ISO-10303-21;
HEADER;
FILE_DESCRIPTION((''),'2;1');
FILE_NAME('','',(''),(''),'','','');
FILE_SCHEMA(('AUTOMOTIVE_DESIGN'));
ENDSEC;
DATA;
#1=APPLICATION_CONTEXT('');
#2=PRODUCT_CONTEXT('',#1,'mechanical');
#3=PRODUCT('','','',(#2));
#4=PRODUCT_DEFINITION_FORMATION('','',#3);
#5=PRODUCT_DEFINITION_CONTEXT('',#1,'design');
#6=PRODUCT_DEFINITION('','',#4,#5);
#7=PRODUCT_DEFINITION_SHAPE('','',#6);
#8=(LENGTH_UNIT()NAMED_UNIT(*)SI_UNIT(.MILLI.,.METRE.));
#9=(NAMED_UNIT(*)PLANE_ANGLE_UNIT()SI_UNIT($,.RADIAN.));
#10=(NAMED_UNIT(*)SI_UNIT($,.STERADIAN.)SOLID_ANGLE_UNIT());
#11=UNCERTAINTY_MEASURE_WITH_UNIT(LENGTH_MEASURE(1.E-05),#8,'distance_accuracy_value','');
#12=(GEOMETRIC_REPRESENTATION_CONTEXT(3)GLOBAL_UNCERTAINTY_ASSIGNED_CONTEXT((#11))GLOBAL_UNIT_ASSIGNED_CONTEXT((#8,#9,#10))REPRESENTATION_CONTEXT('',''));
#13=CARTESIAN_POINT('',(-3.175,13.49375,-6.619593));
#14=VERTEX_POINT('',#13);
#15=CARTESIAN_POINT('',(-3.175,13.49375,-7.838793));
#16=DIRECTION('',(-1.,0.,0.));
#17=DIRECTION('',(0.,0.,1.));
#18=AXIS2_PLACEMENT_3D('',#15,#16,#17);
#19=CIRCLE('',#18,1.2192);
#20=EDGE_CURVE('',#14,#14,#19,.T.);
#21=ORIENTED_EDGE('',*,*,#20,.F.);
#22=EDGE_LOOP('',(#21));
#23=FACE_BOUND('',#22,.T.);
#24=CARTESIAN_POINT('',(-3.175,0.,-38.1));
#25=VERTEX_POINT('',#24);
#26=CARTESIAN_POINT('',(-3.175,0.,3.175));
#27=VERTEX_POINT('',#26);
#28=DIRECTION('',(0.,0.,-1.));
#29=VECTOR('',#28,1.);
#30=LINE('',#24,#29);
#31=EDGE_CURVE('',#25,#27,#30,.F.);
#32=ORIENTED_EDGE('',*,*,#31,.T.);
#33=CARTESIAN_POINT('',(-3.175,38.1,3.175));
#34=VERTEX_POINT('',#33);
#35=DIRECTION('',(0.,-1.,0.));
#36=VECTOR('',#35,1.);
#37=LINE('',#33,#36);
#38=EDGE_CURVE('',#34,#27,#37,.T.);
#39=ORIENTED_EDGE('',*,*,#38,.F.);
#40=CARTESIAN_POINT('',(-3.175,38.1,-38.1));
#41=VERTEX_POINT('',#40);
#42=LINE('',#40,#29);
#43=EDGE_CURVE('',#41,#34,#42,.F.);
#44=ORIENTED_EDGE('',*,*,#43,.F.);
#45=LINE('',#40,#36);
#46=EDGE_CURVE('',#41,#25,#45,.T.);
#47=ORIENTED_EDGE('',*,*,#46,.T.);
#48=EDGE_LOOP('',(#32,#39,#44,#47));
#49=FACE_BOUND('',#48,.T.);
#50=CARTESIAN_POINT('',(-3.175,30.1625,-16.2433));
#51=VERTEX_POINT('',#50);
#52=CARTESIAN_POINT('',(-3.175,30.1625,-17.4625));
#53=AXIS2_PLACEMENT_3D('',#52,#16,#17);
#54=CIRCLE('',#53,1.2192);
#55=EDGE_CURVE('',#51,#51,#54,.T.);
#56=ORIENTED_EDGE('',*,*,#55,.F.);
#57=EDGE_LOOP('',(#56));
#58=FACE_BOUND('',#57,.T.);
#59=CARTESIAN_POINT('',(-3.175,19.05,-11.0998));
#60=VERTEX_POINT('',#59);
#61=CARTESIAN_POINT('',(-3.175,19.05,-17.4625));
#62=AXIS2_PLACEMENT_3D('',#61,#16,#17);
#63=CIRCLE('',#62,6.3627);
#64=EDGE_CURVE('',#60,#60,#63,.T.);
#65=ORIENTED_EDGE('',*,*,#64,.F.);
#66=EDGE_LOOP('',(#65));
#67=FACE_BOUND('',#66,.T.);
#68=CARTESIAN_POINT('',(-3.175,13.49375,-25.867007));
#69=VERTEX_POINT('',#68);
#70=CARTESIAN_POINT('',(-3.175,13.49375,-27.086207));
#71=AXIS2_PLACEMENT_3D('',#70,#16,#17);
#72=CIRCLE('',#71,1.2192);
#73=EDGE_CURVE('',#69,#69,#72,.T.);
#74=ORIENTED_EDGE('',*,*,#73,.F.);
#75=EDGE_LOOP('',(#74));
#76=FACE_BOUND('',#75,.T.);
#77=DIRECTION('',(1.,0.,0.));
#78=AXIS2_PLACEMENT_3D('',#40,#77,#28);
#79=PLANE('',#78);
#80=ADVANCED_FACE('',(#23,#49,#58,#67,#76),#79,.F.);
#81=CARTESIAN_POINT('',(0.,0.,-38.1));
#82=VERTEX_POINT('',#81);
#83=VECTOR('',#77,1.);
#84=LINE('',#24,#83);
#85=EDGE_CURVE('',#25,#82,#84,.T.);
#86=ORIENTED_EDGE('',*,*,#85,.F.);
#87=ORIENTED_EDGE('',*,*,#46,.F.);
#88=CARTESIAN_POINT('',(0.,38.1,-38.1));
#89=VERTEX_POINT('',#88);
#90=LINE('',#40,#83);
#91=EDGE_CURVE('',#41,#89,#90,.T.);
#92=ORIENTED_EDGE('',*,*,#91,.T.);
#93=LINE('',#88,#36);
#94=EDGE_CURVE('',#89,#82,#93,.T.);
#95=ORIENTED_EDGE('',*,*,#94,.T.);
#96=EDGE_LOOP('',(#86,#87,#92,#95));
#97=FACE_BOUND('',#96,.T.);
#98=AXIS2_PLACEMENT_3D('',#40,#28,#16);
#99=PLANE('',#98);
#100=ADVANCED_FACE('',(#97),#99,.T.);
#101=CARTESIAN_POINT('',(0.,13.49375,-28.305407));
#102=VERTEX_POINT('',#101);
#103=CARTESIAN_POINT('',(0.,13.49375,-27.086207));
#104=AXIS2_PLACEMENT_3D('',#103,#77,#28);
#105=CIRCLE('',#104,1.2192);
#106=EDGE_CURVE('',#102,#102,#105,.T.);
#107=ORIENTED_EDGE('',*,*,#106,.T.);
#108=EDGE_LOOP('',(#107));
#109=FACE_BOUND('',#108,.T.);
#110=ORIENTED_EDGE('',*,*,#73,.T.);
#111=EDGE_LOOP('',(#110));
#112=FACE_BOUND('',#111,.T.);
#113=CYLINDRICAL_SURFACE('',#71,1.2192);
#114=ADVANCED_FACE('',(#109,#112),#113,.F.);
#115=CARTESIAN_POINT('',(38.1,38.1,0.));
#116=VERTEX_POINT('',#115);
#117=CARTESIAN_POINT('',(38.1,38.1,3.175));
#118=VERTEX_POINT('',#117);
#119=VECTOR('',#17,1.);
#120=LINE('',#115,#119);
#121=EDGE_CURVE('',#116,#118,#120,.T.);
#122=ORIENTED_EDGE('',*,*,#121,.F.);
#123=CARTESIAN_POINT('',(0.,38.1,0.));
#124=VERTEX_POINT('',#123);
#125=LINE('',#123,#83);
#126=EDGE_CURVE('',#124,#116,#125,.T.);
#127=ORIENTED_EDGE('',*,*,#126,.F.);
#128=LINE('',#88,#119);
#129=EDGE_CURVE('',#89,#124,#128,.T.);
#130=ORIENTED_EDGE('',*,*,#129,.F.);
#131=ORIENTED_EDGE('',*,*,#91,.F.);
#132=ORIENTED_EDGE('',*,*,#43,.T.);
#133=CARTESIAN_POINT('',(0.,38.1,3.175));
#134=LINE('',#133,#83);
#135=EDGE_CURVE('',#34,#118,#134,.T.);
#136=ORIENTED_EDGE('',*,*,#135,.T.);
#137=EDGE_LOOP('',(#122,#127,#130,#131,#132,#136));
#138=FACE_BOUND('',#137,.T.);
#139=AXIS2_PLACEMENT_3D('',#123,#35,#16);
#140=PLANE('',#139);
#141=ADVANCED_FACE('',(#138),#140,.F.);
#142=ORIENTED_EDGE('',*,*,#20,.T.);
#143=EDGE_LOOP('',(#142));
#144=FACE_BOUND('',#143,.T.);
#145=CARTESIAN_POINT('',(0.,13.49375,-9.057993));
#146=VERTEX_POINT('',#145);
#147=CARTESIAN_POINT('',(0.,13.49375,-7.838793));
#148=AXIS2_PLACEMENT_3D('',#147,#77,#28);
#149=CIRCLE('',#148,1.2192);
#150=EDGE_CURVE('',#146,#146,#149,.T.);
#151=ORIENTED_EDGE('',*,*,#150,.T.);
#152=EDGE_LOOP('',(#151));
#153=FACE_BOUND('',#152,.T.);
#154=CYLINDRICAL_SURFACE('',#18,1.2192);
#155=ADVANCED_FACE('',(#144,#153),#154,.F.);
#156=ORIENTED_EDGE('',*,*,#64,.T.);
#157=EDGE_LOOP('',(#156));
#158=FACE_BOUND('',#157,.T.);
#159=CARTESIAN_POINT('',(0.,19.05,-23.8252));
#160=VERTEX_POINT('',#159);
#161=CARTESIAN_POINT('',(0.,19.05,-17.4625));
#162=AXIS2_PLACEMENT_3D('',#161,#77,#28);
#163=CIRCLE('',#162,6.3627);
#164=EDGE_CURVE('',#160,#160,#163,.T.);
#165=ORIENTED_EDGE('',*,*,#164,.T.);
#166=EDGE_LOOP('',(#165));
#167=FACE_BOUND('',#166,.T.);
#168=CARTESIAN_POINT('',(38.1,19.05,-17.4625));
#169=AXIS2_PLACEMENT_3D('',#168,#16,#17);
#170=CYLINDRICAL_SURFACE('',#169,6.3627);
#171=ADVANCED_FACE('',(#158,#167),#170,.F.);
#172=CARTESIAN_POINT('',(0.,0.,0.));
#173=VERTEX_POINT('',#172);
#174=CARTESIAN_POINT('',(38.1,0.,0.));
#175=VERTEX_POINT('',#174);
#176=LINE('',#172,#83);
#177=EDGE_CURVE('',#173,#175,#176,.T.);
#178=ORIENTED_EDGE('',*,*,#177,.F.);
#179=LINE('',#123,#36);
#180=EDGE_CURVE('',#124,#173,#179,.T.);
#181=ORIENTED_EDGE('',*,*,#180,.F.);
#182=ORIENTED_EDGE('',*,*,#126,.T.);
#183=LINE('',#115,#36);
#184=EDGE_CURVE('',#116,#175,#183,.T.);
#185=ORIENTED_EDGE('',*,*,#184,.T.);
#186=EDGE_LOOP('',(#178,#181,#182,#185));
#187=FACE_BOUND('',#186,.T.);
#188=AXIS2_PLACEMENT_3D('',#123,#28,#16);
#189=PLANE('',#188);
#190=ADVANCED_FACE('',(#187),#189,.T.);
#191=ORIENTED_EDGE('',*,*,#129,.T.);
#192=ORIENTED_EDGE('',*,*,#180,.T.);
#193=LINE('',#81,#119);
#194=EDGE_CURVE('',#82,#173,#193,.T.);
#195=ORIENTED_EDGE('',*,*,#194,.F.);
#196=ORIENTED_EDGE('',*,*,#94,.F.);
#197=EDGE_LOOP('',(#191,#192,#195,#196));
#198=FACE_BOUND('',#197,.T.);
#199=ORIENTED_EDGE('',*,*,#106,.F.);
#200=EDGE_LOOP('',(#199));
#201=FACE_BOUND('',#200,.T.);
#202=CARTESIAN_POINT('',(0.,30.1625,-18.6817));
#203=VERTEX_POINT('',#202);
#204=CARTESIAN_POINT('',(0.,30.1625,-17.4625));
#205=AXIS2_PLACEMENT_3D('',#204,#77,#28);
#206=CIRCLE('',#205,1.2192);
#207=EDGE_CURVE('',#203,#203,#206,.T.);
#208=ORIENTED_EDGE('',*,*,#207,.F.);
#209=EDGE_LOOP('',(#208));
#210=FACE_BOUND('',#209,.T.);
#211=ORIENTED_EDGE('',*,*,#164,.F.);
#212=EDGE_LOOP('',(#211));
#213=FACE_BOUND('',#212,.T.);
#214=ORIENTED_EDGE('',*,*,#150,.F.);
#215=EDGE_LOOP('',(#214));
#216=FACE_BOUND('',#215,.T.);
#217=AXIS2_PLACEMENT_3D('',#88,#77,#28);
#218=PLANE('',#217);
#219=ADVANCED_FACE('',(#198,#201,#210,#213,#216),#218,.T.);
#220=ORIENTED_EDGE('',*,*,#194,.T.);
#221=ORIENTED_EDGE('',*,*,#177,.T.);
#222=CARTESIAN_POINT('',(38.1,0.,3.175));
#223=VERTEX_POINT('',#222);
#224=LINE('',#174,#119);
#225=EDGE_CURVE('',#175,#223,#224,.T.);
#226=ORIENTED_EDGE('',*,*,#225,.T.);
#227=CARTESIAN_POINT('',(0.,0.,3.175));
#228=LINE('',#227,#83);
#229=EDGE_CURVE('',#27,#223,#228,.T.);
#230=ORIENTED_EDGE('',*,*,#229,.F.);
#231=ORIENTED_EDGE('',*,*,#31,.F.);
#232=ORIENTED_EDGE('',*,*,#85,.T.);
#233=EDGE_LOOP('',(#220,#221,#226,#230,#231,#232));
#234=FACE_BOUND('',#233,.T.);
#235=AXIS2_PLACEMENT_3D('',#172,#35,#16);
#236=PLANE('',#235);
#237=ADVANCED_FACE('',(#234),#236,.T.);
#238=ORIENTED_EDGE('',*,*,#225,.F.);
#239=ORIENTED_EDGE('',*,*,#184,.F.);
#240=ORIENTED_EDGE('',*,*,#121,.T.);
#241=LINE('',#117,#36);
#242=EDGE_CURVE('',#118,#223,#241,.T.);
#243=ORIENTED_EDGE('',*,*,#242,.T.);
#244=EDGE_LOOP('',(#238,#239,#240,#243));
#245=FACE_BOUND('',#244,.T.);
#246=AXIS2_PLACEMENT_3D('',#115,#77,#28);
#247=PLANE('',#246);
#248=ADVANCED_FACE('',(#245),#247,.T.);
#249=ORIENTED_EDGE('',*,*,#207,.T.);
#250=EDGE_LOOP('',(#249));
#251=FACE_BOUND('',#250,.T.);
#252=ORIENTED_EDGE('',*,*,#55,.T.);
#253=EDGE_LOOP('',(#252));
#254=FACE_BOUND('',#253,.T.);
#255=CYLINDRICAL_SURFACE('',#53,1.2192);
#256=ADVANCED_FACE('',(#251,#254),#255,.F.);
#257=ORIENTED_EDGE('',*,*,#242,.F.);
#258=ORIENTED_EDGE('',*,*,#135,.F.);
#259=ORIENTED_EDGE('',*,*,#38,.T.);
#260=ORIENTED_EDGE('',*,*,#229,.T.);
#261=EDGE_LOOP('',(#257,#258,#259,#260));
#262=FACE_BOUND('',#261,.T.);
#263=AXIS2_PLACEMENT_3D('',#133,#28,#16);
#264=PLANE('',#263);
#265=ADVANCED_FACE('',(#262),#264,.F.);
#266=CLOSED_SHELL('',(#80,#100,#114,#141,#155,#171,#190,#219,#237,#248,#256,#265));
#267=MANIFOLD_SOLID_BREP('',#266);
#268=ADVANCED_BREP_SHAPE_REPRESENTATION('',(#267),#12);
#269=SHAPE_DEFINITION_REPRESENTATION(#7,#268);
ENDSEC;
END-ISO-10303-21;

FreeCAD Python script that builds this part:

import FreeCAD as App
import Part
import Sketcher
Q = App.Units.Quantity


def add_polygon(sketch, points):
    """Adds a closed chain of lines whose ends are joined by coincident constraints."""
    first, n = sketch.GeometryCount, len(points)
    for a, b in zip(points, points[1:] + points[:1]):
        sketch.addGeometry(Part.LineSegment(App.Vector(*a, 0), App.Vector(*b, 0)), False)
    for i in range(n):
        sketch.addConstraint(Sketcher.Constraint("Coincident", first + i, 2, first + (i + 1) % n, 1))

doc = App.newDocument("Part")
body = doc.addObject("PartDesign::Body", "Body")

sketch1 = body.newObject("Sketcher::SketchObject", "Sketch")
sketch1.AttachmentSupport = (doc.getObject("XZ_Plane"), [""])
sketch1.MapMode = "FlatFace"
add_polygon(sketch1, [(0, 0), (0, -38.1), (-3.175, -38.1), (-3.175, 3.175), (38.1, 3.175), (38.1, 0)])
sketch1.addConstraint(Sketcher.Constraint("Vertical", 0))
sketch1.addConstraint(Sketcher.Constraint("Horizontal", 1))
sketch1.addConstraint(Sketcher.Constraint("Vertical", 2))
sketch1.addConstraint(Sketcher.Constraint("Horizontal", 3))
sketch1.addConstraint(Sketcher.Constraint("Vertical", 4))
sketch1.addConstraint(Sketcher.Constraint("Horizontal", 5))
sketch1.addConstraint(Sketcher.Constraint("Coincident", 5, 2, -1, 1))
sketch1.addConstraint(Sketcher.Constraint("Equal", 5, 0))
sketch1.addConstraint(Sketcher.Constraint("Equal", 3, 2))
sketch1.addConstraint(Sketcher.Constraint("DistanceX", 5, 2, 5, 1, Q("1.5 in")))
sketch1.addConstraint(Sketcher.Constraint("DistanceX", 1, 2, 1, 1, Q("0.125 in")))
pad1 = body.newObject("PartDesign::Pad", "Pad")
pad1.Profile = sketch1
pad1.Length = Q("1.5 in")
pad1.Reversed = True

sketch2 = body.newObject("Sketcher::SketchObject", "Sketch001")
sketch2.AttachmentSupport = (doc.getObject("YZ_Plane"), [""])
sketch2.MapMode = "FlatFace"
sketch2.AttachmentOffset = App.Placement(App.Vector(0, 0, -0.125 * 25.4), App.Rotation())
sketch2.addGeometry(Part.Circle(App.Vector(19.05, -17.4625, 0), App.Vector(0, 0, 1), 6.3627), False)
sketch2.addConstraint(Sketcher.Constraint("Diameter", 0, Q("0.501 in")))
sketch2.addConstraint(Sketcher.Constraint("DistanceX", -1, 1, 0, 3, Q("0.75 in")))
sketch2.addConstraint(Sketcher.Constraint("DistanceY", 0, 3, -1, 1, Q("0.6875 in")))
pocket1 = body.newObject("PartDesign::Pocket", "Pocket")
pocket1.Profile = sketch2
pocket1.Type = "ThroughAll"
pocket1.Reversed = True

sketch3 = body.newObject("Sketcher::SketchObject", "Sketch002")
sketch3.AttachmentSupport = (doc.getObject("YZ_Plane"), [""])
sketch3.MapMode = "FlatFace"
sketch3.AttachmentOffset = App.Placement(App.Vector(0, 0, -0.125 * 25.4), App.Rotation())
sketch3.addGeometry(Part.Circle(App.Vector(13.49375, -27.086207, 0), App.Vector(0, 0, 1), 1.2192), False)
sketch3.addGeometry(Part.Circle(App.Vector(30.1625, -17.4625, 0), App.Vector(0, 0, 1), 1.2192), False)
sketch3.addGeometry(Part.Circle(App.Vector(13.49375, -7.838793, 0), App.Vector(0, 0, 1), 1.2192), False)
sketch3.addConstraint(Sketcher.Constraint("Equal", 0, 1))
sketch3.addConstraint(Sketcher.Constraint("Equal", 1, 2))
sketch3.addConstraint(Sketcher.Constraint("Vertical", 0, 3, 2, 3))
sketch3.addConstraint(Sketcher.Constraint("Diameter", 0, Q("0.096 in")))
sketch3.addConstraint(Sketcher.Constraint("DistanceX", -1, 1, 0, 3, Q("0.53125 in")))
sketch3.addConstraint(Sketcher.Constraint("DistanceX", -1, 1, 1, 3, Q("1.1875 in")))
sketch3.addConstraint(Sketcher.Constraint("DistanceY", 1, 3, -1, 1, Q("0.6875 in")))
sketch3.addConstraint(Sketcher.Constraint("DistanceY", 0, 3, -1, 1, Q("27.086207 mm")))
sketch3.addConstraint(Sketcher.Constraint("DistanceY", 2, 3, -1, 1, Q("7.838793 mm")))
doc.recompute()
hole = body.newObject("PartDesign::Hole", "Hole")
hole.Profile = sketch3
hole.ThreadType = "None"
hole.Diameter = Q("0.096 in")
hole.DepthType = "ThroughAll"
hole.Reversed = True

doc.recompute()
